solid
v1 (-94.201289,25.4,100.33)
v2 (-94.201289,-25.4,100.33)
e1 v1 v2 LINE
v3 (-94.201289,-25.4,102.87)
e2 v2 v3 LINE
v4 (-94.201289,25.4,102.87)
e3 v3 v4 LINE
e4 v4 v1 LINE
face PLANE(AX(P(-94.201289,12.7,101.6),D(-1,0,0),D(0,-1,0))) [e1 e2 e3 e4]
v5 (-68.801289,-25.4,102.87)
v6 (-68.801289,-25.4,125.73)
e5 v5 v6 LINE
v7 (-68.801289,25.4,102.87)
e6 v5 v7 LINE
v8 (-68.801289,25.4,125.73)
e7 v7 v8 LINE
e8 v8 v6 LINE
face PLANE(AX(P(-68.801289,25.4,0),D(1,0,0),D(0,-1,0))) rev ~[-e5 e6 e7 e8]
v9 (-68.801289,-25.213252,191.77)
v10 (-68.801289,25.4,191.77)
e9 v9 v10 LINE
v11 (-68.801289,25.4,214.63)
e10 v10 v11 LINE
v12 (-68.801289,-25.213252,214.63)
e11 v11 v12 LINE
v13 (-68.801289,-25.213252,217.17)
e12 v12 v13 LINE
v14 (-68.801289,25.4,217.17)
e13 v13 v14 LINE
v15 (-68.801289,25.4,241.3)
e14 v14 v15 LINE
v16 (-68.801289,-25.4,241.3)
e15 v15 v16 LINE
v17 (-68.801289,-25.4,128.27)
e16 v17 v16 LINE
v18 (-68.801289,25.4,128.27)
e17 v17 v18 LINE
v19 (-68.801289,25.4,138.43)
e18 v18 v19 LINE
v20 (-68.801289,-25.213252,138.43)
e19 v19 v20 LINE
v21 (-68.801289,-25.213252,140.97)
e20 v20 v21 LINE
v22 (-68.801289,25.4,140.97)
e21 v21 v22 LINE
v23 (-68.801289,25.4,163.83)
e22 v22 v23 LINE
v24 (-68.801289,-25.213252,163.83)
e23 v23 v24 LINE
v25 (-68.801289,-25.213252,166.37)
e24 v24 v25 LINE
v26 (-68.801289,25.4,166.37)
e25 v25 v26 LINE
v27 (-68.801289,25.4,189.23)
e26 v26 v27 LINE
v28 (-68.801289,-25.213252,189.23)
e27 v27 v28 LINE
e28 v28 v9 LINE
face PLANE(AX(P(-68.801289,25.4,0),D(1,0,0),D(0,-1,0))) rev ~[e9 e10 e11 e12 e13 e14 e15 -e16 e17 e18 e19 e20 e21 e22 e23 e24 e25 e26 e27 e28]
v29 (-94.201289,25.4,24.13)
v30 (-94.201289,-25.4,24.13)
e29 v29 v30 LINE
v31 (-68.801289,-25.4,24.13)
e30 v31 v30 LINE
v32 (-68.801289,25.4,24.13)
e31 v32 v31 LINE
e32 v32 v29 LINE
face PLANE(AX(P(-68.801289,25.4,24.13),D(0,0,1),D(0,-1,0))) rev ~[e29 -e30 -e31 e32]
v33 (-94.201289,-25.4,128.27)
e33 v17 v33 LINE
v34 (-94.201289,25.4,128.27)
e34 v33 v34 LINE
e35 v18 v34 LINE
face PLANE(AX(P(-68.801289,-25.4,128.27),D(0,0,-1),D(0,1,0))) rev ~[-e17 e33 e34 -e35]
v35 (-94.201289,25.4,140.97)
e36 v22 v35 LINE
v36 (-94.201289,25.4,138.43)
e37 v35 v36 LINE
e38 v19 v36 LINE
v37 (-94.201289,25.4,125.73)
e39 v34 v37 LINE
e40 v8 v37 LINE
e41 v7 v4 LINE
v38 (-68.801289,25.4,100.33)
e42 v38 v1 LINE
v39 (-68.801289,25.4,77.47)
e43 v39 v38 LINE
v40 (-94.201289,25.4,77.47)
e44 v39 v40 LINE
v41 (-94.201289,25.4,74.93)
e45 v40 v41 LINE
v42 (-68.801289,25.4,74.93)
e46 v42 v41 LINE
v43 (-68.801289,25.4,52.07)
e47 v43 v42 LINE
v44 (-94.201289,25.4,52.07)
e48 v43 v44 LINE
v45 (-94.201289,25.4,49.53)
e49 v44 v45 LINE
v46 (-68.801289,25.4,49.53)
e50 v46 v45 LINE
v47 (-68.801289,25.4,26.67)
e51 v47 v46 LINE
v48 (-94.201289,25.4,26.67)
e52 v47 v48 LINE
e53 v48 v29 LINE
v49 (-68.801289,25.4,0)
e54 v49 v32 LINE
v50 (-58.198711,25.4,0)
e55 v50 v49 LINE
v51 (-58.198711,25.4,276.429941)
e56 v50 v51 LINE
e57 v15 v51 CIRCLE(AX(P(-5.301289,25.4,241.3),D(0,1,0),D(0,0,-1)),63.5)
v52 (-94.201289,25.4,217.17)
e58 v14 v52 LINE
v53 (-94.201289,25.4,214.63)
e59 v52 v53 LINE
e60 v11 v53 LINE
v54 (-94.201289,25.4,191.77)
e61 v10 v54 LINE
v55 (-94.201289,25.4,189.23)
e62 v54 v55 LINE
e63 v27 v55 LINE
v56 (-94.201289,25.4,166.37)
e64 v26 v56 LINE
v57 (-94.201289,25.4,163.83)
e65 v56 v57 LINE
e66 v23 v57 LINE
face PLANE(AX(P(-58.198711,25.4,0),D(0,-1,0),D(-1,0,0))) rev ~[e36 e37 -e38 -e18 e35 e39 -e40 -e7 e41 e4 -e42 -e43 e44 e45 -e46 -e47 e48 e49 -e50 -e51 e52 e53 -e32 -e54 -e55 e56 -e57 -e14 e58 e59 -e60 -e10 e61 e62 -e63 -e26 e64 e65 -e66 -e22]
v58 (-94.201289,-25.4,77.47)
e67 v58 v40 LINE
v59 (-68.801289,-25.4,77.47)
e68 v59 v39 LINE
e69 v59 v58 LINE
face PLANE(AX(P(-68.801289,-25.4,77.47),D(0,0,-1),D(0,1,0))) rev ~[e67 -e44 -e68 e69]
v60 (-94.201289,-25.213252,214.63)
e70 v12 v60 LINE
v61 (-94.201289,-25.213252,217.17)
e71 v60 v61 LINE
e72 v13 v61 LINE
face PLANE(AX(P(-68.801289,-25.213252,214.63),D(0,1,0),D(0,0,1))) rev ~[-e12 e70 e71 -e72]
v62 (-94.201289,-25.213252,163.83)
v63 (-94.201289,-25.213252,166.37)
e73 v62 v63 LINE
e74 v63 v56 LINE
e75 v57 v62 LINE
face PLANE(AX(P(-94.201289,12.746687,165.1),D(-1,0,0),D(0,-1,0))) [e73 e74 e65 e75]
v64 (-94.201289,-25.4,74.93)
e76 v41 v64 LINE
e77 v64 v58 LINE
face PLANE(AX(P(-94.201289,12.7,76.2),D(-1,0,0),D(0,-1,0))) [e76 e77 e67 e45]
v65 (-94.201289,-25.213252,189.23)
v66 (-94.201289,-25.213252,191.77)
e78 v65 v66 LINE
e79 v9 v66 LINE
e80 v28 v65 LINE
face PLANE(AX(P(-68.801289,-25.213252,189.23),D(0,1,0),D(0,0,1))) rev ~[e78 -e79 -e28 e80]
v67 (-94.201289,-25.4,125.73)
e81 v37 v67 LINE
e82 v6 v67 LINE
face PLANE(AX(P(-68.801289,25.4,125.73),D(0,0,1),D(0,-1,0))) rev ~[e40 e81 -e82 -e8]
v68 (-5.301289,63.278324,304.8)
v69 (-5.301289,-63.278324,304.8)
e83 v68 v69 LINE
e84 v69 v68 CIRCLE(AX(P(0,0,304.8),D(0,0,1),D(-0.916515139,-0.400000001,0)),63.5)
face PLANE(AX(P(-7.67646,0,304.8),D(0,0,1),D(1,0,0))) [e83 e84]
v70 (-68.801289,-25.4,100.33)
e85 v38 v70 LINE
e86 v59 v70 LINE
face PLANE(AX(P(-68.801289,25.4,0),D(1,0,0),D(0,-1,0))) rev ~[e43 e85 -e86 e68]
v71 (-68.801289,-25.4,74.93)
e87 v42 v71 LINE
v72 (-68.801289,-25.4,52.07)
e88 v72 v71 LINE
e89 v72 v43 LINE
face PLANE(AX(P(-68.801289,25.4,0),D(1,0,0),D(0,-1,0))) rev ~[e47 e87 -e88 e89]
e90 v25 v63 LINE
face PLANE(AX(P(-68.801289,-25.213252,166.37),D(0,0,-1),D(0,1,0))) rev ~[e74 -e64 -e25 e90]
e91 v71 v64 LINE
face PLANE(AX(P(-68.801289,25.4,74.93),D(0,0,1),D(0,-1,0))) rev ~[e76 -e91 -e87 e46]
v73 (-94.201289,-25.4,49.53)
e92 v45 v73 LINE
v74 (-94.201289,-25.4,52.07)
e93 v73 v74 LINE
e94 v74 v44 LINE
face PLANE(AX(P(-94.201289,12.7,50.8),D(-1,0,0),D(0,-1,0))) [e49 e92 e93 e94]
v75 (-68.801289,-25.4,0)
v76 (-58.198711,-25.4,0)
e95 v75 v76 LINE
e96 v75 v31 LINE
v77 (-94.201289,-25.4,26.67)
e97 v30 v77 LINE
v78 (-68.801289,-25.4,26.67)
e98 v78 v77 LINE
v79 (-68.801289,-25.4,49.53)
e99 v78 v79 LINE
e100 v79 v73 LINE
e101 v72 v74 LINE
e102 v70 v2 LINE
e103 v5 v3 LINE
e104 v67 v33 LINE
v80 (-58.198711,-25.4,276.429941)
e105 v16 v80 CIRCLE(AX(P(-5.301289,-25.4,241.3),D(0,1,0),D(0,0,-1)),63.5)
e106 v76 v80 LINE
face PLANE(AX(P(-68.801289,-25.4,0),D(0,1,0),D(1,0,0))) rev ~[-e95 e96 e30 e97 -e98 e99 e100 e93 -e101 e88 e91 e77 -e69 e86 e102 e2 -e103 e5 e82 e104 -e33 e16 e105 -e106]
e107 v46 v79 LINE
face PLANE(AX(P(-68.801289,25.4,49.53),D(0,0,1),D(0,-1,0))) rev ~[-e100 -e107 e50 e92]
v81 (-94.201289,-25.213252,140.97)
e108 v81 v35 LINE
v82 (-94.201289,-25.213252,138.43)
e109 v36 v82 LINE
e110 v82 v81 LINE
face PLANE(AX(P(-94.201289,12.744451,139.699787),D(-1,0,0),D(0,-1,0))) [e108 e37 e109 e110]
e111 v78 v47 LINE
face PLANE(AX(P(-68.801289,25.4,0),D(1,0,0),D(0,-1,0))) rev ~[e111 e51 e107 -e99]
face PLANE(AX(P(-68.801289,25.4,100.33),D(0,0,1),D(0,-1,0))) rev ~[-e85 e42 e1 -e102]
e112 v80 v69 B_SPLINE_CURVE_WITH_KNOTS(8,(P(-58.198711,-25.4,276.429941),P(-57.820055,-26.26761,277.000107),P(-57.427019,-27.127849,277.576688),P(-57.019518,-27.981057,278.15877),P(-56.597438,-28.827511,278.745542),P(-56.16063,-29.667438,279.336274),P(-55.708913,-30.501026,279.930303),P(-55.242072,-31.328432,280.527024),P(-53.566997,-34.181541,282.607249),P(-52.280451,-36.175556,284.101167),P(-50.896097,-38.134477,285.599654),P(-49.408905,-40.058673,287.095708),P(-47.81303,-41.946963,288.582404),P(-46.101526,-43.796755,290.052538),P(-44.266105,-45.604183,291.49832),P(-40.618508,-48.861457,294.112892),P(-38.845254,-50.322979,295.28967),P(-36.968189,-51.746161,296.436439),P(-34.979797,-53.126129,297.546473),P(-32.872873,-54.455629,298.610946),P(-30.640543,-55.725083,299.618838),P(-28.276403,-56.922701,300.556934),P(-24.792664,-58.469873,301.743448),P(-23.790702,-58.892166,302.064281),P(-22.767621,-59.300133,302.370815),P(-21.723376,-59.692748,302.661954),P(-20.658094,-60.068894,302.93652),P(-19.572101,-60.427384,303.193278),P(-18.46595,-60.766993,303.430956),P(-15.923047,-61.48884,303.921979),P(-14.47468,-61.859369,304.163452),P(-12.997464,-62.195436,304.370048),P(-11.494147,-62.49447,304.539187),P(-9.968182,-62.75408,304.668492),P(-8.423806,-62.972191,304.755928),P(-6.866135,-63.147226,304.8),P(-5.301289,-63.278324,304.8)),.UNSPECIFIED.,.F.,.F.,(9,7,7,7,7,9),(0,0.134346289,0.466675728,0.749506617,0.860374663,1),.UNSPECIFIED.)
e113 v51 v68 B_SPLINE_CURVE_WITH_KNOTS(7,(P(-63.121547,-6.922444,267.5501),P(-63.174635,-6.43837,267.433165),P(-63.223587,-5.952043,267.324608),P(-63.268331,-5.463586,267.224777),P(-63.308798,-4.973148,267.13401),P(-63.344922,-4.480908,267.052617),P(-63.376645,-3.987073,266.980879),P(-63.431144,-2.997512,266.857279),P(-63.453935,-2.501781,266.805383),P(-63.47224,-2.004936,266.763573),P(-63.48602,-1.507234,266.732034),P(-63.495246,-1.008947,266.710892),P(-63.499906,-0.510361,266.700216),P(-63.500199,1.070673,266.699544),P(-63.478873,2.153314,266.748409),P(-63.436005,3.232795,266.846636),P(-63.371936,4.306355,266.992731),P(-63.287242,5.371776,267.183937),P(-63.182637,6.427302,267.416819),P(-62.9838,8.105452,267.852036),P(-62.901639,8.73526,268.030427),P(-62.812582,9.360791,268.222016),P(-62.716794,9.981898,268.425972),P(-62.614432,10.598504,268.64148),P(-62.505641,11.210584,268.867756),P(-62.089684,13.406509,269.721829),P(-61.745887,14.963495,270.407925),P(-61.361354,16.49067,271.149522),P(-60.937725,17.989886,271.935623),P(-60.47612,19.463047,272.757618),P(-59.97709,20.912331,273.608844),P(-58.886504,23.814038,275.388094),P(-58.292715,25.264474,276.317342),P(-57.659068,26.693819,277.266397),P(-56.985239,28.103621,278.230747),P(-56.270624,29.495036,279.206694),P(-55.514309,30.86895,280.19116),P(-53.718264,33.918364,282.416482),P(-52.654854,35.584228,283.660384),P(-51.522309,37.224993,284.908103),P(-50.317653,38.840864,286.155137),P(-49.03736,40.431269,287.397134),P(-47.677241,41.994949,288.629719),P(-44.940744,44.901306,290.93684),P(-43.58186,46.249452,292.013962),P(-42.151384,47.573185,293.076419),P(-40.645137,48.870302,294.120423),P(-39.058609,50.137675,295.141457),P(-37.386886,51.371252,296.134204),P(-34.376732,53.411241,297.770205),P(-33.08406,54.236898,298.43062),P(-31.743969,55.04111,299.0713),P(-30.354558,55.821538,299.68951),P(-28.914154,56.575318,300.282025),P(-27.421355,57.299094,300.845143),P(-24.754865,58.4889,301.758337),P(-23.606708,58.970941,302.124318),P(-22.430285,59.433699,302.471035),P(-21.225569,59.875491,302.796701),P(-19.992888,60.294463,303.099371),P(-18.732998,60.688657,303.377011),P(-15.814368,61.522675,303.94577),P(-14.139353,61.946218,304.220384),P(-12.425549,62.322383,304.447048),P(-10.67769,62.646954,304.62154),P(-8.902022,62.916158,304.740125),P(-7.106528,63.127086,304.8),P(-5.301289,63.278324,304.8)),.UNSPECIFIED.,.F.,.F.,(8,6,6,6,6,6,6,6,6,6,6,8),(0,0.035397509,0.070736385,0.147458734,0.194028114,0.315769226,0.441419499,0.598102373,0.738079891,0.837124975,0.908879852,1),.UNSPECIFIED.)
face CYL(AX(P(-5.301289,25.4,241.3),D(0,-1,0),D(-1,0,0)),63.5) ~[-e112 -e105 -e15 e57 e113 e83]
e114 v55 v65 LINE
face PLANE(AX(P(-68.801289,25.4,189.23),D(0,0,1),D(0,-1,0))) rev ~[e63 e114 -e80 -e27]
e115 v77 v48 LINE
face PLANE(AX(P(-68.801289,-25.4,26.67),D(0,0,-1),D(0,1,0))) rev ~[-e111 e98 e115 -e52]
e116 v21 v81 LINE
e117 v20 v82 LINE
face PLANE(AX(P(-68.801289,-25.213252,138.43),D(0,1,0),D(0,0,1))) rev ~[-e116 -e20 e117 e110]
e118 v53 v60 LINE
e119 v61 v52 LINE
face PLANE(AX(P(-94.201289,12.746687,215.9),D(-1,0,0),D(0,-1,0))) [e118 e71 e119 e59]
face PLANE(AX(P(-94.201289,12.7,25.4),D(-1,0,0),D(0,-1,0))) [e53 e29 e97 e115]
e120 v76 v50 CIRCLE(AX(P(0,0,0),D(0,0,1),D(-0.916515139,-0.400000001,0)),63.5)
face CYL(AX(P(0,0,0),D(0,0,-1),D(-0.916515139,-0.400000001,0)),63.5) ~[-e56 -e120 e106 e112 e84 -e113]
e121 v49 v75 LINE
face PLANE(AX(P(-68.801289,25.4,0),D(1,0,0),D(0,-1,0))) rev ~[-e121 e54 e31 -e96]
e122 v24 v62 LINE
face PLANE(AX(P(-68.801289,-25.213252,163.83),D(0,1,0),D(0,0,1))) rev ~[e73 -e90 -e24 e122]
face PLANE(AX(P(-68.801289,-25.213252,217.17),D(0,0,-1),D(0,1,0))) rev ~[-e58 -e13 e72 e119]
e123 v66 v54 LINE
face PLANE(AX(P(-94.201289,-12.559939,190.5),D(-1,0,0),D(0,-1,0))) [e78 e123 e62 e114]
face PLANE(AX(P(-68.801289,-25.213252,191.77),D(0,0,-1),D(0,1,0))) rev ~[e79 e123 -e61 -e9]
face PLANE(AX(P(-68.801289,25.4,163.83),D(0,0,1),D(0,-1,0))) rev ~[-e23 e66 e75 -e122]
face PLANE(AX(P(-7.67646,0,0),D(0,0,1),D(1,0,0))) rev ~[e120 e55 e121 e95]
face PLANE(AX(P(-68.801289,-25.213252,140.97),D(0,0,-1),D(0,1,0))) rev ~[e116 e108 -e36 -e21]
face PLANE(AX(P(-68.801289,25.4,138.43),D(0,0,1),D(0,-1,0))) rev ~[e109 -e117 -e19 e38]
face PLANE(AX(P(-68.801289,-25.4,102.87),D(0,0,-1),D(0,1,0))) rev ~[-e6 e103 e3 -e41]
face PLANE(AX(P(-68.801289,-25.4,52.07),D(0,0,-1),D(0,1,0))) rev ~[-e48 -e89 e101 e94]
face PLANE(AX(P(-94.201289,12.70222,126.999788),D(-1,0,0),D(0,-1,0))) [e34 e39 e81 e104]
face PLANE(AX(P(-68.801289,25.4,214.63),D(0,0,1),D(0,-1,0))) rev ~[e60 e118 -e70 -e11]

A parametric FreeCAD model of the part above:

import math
import FreeCAD as App
import Part
import Sketcher

V = App.Vector
Q = App.Units.Quantity


def edges_at(feature, points):
    """Names of the edges that pass closest to the given points."""
    edges = feature.Shape.Edges
    near = lambda p: min(range(len(edges)), key=lambda i: edges[i].distToShape(Part.Vertex(*p))[0])
    return sorted({f"Edge{near(p) + 1}" for p in points})

doc = App.newDocument("Part")
params = doc.addObject("Spreadsheet::Sheet", "Params")
for row, (alias, value) in enumerate([
    ("sketch1_radius", "2.5 in"),
    ("sketch1_height", "2 in"),
    ("pad1_length", "12 in"),
    ("fillet_radius", "2.5 in"),
    ("sketch2_width", "2 in"),
    ("sketch2_height", "0.1 in"),
    ("pad2_length", "1 in"),
], start=1):
    params.set(f"A{row}", alias)
    params.set(f"B{row}", "=" + value)
    params.setAlias(f"B{row}", alias)

body = doc.addObject("PartDesign::Body", "Body")

sketch1 = body.newObject("Sketcher::SketchObject", "Sketch")
sketch1.AttachmentSupport = (doc.getObject("XY_Plane"), [""])
sketch1.MapMode = "FlatFace"
sketch1.addGeometry([
    Part.LineSegment(V(-69, -25, 0), V(-58, -25, 0)),
    Part.ArcOfCircle(Part.Circle(V(0, 0, 0), V(0, 0, 1), 63), math.radians(-156), math.radians(156)),
    Part.LineSegment(V(-58, 25, 0), V(-69, 25, 0)),
    Part.LineSegment(V(-69, 25, 0), V(-69, -25, 0)),
], False)
sketch1.addConstraint([
    Sketcher.Constraint("Coincident", 0, 2, 1, 1),
    Sketcher.Constraint("Coincident", 1, 2, 2, 1),
    Sketcher.Constraint("Coincident", 2, 2, 3, 1),
    Sketcher.Constraint("Coincident", 3, 2, 0, 1),
    Sketcher.Constraint("Horizontal", 0),
    Sketcher.Constraint("Horizontal", 2),
    Sketcher.Constraint("Vertical", 3),
    Sketcher.Constraint("Coincident", 1, 3, -1, 1),
    Sketcher.Constraint("Vertical", 0, 2, 1, 2),
    Sketcher.Constraint("Radius", 1, Q("2.5 in")),
    Sketcher.Constraint("DistanceY", 3, 2, 3, 1, Q("2 in")),
    Sketcher.Constraint("DistanceX", 0, 1, 0, 2, 10.602578),
])
sketch1.setExpression("Constraints[9]", "Params.sketch1_radius")
sketch1.setExpression("Constraints[10]", "Params.sketch1_height")
pad1 = body.newObject("PartDesign::Pad", "Pad")
pad1.Profile = sketch1
pad1.setExpression("Length", "Params.pad1_length")
doc.recompute()

fillet = body.newObject("PartDesign::Fillet", "Fillet")
fillet.Base = (pad1, edges_at(pad1, [(-68.801, 0, 304.8)]))
fillet.setExpression("Radius", "Params.fillet_radius")

sketch2 = body.newObject("Sketcher::SketchObject", "Sketch001")
sketch2.AttachmentSupport = (doc.getObject("YZ_Plane"), [""])
sketch2.MapMode = "FlatFace"
sketch2.AttachmentOffset = App.Placement(V(0, 0, -68.801289), App.Rotation())
sketch2.addGeometry([
    Part.LineSegment(V(25.4, 217.2, 0), V(25.4, 214.6, 0)),
    Part.LineSegment(V(25.4, 214.6, 0), V(-25.2, 214.6, 0)),
    Part.LineSegment(V(-25.2, 214.6, 0), V(-25.2, 217.2, 0)),
    Part.LineSegment(V(-25.2, 217.2, 0), V(25.4, 217.2, 0)),
    Part.LineSegment(V(-25.2, 189.2, 0), V(-25.2, 191.8, 0)),
    Part.LineSegment(V(-25.2, 191.8, 0), V(25.4, 191.8, 0)),
    Part.LineSegment(V(25.4, 191.8, 0), V(25.4, 189.2, 0)),
    Part.LineSegment(V(25.4, 189.2, 0), V(-25.2, 189.2, 0)),
    Part.LineSegment(V(25.4, 166.4, 0), V(25.4, 163.8, 0)),
    Part.LineSegment(V(25.4, 163.8, 0), V(-25.2, 163.8, 0)),
    Part.LineSegment(V(-25.2, 163.8, 0), V(-25.2, 166.4, 0)),
    Part.LineSegment(V(-25.2, 166.4, 0), V(25.4, 166.4, 0)),
    Part.LineSegment(V(25.4, 128.3, 0), V(25.4, 125.7, 0)),
    Part.LineSegment(V(25.4, 125.7, 0), V(-25.4, 125.7, 0)),
    Part.LineSegment(V(-25.4, 125.7, 0), V(-25.4, 128.3, 0)),
    Part.LineSegment(V(-25.4, 128.3, 0), V(25.4, 128.3, 0)),
    Part.LineSegment(V(25.4, 141, 0), V(25.4, 138.4, 0)),
    Part.LineSegment(V(25.4, 138.4, 0), V(-25.2, 138.4, 0)),
    Part.LineSegment(V(-25.2, 138.4, 0), V(-25.2, 141, 0)),
    Part.LineSegment(V(-25.2, 141, 0), V(25.4, 141, 0)),
    Part.LineSegment(V(25.4, 102.9, 0), V(25.4, 100.3, 0)),
    Part.LineSegment(V(25.4, 100.3, 0), V(-25.4, 100.3, 0)),
    Part.LineSegment(V(-25.4, 100.3, 0), V(-25.4, 102.9, 0)),
    Part.LineSegment(V(-25.4, 102.9, 0), V(25.4, 102.9, 0)),
    Part.LineSegment(V(25.4, 77.5, 0), V(25.4, 74.9, 0)),
    Part.LineSegment(V(25.4, 74.9, 0), V(-25.4, 74.9, 0)),
    Part.LineSegment(V(-25.4, 74.9, 0), V(-25.4, 77.5, 0)),
    Part.LineSegment(V(-25.4, 77.5, 0), V(25.4, 77.5, 0)),
    Part.LineSegment(V(25.4, 52.1, 0), V(25.4, 49.5, 0)),
    Part.LineSegment(V(25.4, 49.5, 0), V(-25.4, 49.5, 0)),
    Part.LineSegment(V(-25.4, 49.5, 0), V(-25.4, 52.1, 0)),
    Part.LineSegment(V(-25.4, 52.1, 0), V(25.4, 52.1, 0)),
    Part.LineSegment(V(25.4, 26.7, 0), V(25.4, 24.1, 0)),
    Part.LineSegment(V(25.4, 24.1, 0), V(-25.4, 24.1, 0)),
    Part.LineSegment(V(-25.4, 24.1, 0), V(-25.4, 26.7, 0)),
    Part.LineSegment(V(-25.4, 26.7, 0), V(25.4, 26.7, 0)),
], False)
sketch2.addConstraint([
    Sketcher.Constraint("Coincident", 0, 2, 1, 1),
    Sketcher.Constraint("Coincident", 1, 2, 2, 1),
    Sketcher.Constraint("Coincident", 2, 2, 3, 1),
    Sketcher.Constraint("Coincident", 3, 2, 0, 1),
    Sketcher.Constraint("Coincident", 4, 2, 5, 1),
    Sketcher.Constraint("Coincident", 5, 2, 6, 1),
    Sketcher.Constraint("Coincident", 6, 2, 7, 1),
    Sketcher.Constraint("Coincident", 7, 2, 4, 1),
    Sketcher.Constraint("Coincident", 8, 2, 9, 1),
    Sketcher.Constraint("Coincident", 9, 2, 10, 1),
    Sketcher.Constraint("Coincident", 10, 2, 11, 1),
    Sketcher.Constraint("Coincident", 11, 2, 8, 1),
    Sketcher.Constraint("Coincident", 12, 2, 13, 1),
    Sketcher.Constraint("Coincident", 13, 2, 14, 1),
    Sketcher.Constraint("Coincident", 14, 2, 15, 1),
    Sketcher.Constraint("Coincident", 15, 2, 12, 1),
    Sketcher.Constraint("Coincident", 16, 2, 17, 1),
    Sketcher.Constraint("Coincident", 17, 2, 18, 1),
    Sketcher.Constraint("Coincident", 18, 2, 19, 1),
    Sketcher.Constraint("Coincident", 19, 2, 16, 1),
    Sketcher.Constraint("Coincident", 20, 2, 21, 1),
    Sketcher.Constraint("Coincident", 21, 2, 22, 1),
    Sketcher.Constraint("Coincident", 22, 2, 23, 1),
    Sketcher.Constraint("Coincident", 23, 2, 20, 1),
    Sketcher.Constraint("Coincident", 24, 2, 25, 1),
    Sketcher.Constraint("Coincident", 25, 2, 26, 1),
    Sketcher.Constraint("Coincident", 26, 2, 27, 1),
    Sketcher.Constraint("Coincident", 27, 2, 24, 1),
    Sketcher.Constraint("Coincident", 28, 2, 29, 1),
    Sketcher.Constraint("Coincident", 29, 2, 30, 1),
    Sketcher.Constraint("Coincident", 30, 2, 31, 1),
    Sketcher.Constraint("Coincident", 31, 2, 28, 1),
    Sketcher.Constraint("Coincident", 32, 2, 33, 1),
    Sketcher.Constraint("Coincident", 33, 2, 34, 1),
    Sketcher.Constraint("Coincident", 34, 2, 35, 1),
    Sketcher.Constraint("Coincident", 35, 2, 32, 1),
    Sketcher.Constraint("Vertical", 0),
    Sketcher.Constraint("Horizontal", 1),
    Sketcher.Constraint("Vertical", 2),
    Sketcher.Constraint("Horizontal", 3),
    Sketcher.Constraint("Vertical", 4),
    Sketcher.Constraint("Horizontal", 5),
    Sketcher.Constraint("Vertical", 6),
    Sketcher.Constraint("Horizontal", 7),
    Sketcher.Constraint("Vertical", 8),
    Sketcher.Constraint("Horizontal", 9),
    Sketcher.Constraint("Vertical", 10),
    Sketcher.Constraint("Horizontal", 11),
    Sketcher.Constraint("Vertical", 12),
    Sketcher.Constraint("Horizontal", 13),
    Sketcher.Constraint("Vertical", 14),
    Sketcher.Constraint("Horizontal", 15),
    Sketcher.Constraint("Vertical", 16),
    Sketcher.Constraint("Horizontal", 17),
    Sketcher.Constraint("Vertical", 18),
    Sketcher.Constraint("Horizontal", 19),
    Sketcher.Constraint("Vertical", 20),
    Sketcher.Constraint("Horizontal", 21),
    Sketcher.Constraint("Vertical", 22),
    Sketcher.Constraint("Horizontal", 23),
    Sketcher.Constraint("Vertical", 24),
    Sketcher.Constraint("Horizontal", 25),
    Sketcher.Constraint("Vertical", 26),
    Sketcher.Constraint("Horizontal", 27),
    Sketcher.Constraint("Vertical", 28),
    Sketcher.Constraint("Horizontal", 29),
    Sketcher.Constraint("Vertical", 30),
    Sketcher.Constraint("Horizontal", 31),
    Sketcher.Constraint("Vertical", 32),
    Sketcher.Constraint("Horizontal", 33),
    Sketcher.Constraint("Vertical", 34),
    Sketcher.Constraint("Horizontal", 35),
    Sketcher.Constraint("Vertical", 2, 2, 4, 2),
    Sketcher.Constraint("Vertical", 3, 2, 5, 2),
    Sketcher.Constraint("Vertical", 6, 2, 8, 2),
    Sketcher.Constraint("Vertical", 7, 2, 9, 2),
    Sketcher.Constraint("Vertical", 11, 2, 12, 2),
    Sketcher.Constraint("Vertical", 15, 2, 16, 2),
    Sketcher.Constraint("Vertical", 10, 2, 17, 2),
    Sketcher.Constraint("Vertical", 19, 2, 20, 2),
    Sketcher.Constraint("Vertical", 14, 2, 21, 2),
    Sketcher.Constraint("Vertical", 23, 2, 24, 2),
    Sketcher.Constraint("Vertical", 22, 2, 25, 2),
    Sketcher.Constraint("Vertical", 27, 2, 28, 2),
    Sketcher.Constraint("Vertical", 26, 2, 29, 2),
    Sketcher.Constraint("Vertical", 31, 2, 32, 2),
    Sketcher.Constraint("Vertical", 30, 2, 33, 2),
    Sketcher.Constraint("Equal", 2, 4),
    Sketcher.Constraint("Equal", 6, 8),
    Sketcher.Constraint("Equal", 10, 12),
    Sketcher.Constraint("Equal", 14, 16),
    Sketcher.Constraint("Equal", 18, 20),
    Sketcher.Constraint("Equal", 22, 24),
    Sketcher.Constraint("Equal", 26, 28),
    Sketcher.Constraint("Equal", 30, 32),
    Sketcher.Constraint("DistanceX", 13, 2, 13, 1, Q("2 in")),
    Sketcher.Constraint("DistanceY", 0, 2, 0, 1, Q("0.1 in")),
    Sketcher.Constraint("DistanceX", -1, 1, 0, 2, Q("1 in")),
    Sketcher.Constraint("DistanceY", 4, 2, 2, 2, Q("1 in")),
    Sketcher.Constraint("DistanceY", 8, 2, 6, 2, Q("1 in")),
    Sketcher.Constraint("DistanceY", 16, 2, 8, 2, Q("1 in")),
    Sketcher.Constraint("DistanceY", 20, 2, 12, 2, Q("1 in")),
    Sketcher.Constraint("DistanceY", 24, 2, 20, 2, Q("1 in")),
    Sketcher.Constraint("DistanceY", 28, 2, 24, 2, Q("1 in")),
    Sketcher.Constraint("DistanceY", 32, 2, 28, 2, Q("1 in")),
    Sketcher.Constraint("DistanceY", 12, 2, 8, 2, Q("1.5 in")),
    Sketcher.Constraint("DistanceY", -1, 1, 0, 2, Q("8.45 in")),
    Sketcher.Constraint("DistanceX", 1, 2, 1, 1, 50.613252),
])
sketch2.setExpression("Constraints[95]", "Params.sketch2_width")
sketch2.setExpression("Constraints[96]", "Params.sketch2_height")
pad2 = body.newObject("PartDesign::Pad", "Pad001")
pad2.Profile = sketch2
pad2.setExpression("Length", "Params.pad2_length")
pad2.Reversed = True

doc.recompute()
